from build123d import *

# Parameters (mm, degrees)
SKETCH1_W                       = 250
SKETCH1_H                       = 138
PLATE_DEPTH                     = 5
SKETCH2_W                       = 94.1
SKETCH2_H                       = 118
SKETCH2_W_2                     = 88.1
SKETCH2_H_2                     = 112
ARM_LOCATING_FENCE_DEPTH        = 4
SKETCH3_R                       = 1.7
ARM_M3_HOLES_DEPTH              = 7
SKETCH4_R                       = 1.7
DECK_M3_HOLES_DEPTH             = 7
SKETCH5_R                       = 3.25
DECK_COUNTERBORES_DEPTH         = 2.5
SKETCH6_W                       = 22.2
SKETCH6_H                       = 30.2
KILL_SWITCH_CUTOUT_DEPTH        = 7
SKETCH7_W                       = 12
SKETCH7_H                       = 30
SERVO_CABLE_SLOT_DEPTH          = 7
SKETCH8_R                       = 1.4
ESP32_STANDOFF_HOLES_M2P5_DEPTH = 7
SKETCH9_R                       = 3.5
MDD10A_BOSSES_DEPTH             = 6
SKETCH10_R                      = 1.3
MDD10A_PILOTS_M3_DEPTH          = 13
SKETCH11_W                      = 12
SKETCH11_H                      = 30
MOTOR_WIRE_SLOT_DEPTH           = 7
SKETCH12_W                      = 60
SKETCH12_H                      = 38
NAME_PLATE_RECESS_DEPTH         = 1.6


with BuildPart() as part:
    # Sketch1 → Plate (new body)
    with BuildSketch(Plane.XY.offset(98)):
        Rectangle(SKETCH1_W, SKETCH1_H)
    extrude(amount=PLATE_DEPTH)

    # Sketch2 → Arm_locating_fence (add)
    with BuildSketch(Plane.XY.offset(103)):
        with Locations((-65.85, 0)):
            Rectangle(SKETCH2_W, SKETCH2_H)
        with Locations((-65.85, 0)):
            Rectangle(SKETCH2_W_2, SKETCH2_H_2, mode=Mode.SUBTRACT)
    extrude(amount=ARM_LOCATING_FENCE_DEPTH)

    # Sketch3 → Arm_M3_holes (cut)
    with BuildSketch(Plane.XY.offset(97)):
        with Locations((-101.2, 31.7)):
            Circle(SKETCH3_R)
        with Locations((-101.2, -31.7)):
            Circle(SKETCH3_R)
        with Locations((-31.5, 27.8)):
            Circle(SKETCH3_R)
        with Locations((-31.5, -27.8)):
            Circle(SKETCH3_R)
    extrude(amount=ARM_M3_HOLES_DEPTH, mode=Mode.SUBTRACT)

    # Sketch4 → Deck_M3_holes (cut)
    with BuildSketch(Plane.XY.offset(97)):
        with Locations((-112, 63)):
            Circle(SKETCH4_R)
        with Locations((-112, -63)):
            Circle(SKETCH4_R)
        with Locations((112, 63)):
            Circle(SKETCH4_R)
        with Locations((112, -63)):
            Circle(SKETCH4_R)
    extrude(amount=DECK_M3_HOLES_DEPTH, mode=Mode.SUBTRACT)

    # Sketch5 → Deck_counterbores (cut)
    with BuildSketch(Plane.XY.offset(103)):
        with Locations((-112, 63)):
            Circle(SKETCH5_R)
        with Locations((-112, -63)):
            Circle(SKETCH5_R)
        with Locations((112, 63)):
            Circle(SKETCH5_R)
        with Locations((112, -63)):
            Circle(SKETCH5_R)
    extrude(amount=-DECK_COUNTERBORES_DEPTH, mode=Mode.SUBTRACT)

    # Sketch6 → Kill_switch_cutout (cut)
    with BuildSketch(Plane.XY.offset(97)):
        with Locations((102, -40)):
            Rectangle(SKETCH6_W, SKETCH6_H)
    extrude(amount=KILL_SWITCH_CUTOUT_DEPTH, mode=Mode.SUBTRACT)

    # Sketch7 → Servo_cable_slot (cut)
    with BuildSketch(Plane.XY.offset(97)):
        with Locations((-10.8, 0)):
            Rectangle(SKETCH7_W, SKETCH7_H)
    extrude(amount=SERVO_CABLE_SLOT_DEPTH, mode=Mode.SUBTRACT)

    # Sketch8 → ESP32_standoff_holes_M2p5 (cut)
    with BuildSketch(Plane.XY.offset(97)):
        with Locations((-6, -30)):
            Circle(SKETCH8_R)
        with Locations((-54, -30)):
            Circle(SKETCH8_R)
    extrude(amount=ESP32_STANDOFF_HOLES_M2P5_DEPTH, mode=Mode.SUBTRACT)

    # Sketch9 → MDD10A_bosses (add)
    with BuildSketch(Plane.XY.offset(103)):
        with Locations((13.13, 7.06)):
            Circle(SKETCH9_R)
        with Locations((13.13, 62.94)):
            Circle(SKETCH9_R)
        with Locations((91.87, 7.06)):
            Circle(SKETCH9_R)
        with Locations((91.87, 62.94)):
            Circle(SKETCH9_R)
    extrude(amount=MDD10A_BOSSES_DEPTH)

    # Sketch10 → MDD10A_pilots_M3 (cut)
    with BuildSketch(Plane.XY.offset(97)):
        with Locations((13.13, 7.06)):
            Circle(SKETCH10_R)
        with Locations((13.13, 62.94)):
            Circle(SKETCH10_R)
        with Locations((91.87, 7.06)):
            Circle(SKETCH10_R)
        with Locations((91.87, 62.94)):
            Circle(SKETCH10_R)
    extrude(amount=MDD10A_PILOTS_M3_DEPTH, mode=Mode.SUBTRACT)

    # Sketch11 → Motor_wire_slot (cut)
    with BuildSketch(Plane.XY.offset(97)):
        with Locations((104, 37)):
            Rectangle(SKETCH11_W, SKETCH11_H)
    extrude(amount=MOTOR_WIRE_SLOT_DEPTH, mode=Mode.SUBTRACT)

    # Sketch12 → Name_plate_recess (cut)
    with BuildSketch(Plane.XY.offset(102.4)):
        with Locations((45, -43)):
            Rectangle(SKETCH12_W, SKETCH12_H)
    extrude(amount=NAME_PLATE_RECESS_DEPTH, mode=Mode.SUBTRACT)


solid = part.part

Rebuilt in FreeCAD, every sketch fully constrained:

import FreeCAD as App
import Part
import Sketcher
from FreeCAD import Vector
Q = App.Units.Quantity


def add_polygon(sketch, points):
    """Adds a closed chain of lines whose ends are joined by coincident constraints."""
    first, n = sketch.GeometryCount, len(points)
    for a, b in zip(points, points[1:] + points[:1]):
        sketch.addGeometry(Part.LineSegment(App.Vector(*a, 0), App.Vector(*b, 0)), False)
    for i in range(n):
        sketch.addConstraint(Sketcher.Constraint("Coincident", first + i, 2, first + (i + 1) % n, 1))

doc = App.newDocument("Part")
body = doc.addObject("PartDesign::Body", "Body")

# Sketch on XY plane
sketch1 = doc.addObject("Sketcher::SketchObject", "Sketch")
body.addObject(sketch1)
sketch1.AttachmentSupport = (doc.XY_Plane, [""])
sketch1.MapMode = "FlatFace"
sketch1.AttachmentOffset = App.Placement(Vector(0, 0, 98), App.Rotation())
add_polygon(sketch1, [(-125, 69), (-125, -69), (125, -69), (125, 69)])  # lines 0-3
sketch1.addConstraint(Sketcher.Constraint("Vertical", 0))
sketch1.addConstraint(Sketcher.Constraint("Horizontal", 1))
sketch1.addConstraint(Sketcher.Constraint("Vertical", 2))
sketch1.addConstraint(Sketcher.Constraint("Horizontal", 3))
sketch1.addConstraint(Sketcher.Constraint("Symmetric", 0, 2, 2, 2, -1, 1))
sketch1.addConstraint(Sketcher.Constraint("DistanceX", 1, 1, 1, 2, Q("250 mm")))
sketch1.addConstraint(Sketcher.Constraint("DistanceY", 0, 2, 0, 1, Q("138 mm")))
pad1 = doc.addObject("PartDesign::Pad", "Pad")
body.addObject(pad1)
pad1.Profile = sketch1
pad1.Length = 5

# Sketch on XY plane
sketch2 = doc.addObject("Sketcher::SketchObject", "Sketch001")
body.addObject(sketch2)
sketch2.AttachmentSupport = (doc.XY_Plane, [""])
sketch2.MapMode = "FlatFace"
sketch2.AttachmentOffset = App.Placement(Vector(0, 0, 103), App.Rotation())
add_polygon(sketch2, [(-112.9, 59), (-112.9, -59), (-18.8, -59), (-18.8, 59)])  # lines 0-3
add_polygon(sketch2, [(-21.8, -56), (-109.9, -56), (-109.9, 56), (-21.8, 56)])  # lines 4-7
sketch2.addConstraint(Sketcher.Constraint("Vertical", 0))
sketch2.addConstraint(Sketcher.Constraint("Horizontal", 1))
sketch2.addConstraint(Sketcher.Constraint("Vertical", 2))
sketch2.addConstraint(Sketcher.Constraint("Horizontal", 3))
sketch2.addConstraint(Sketcher.Constraint("Horizontal", 4))
sketch2.addConstraint(Sketcher.Constraint("Vertical", 5))
sketch2.addConstraint(Sketcher.Constraint("Horizontal", 6))
sketch2.addConstraint(Sketcher.Constraint("Vertical", 7))
sketch2.addConstraint(Sketcher.Constraint("DistanceY", 0, 2, 0, 1, Q("118 mm")))
sketch2.addConstraint(Sketcher.Constraint("DistanceY", 5, 1, 5, 2, Q("112 mm")))
sketch2.addConstraint(Sketcher.Constraint("DistanceX", 1, 1, 1, 2, Q("94.1 mm")))
sketch2.addConstraint(Sketcher.Constraint("DistanceX", 4, 2, 4, 1, Q("88.1 mm")))
sketch2.addConstraint(Sketcher.Constraint("DistanceY", 0, 2, -1, 1, Q("59 mm")))
sketch2.addConstraint(Sketcher.Constraint("DistanceY", 4, 2, -1, 1, Q("56 mm")))
sketch2.addConstraint(Sketcher.Constraint("DistanceX", 0, 2, 4, 2, Q("3 mm")))
sketch2.addConstraint(Sketcher.Constraint("DistanceX", 0, 2, -1, 1, Q("112.9 mm")))
pad2 = doc.addObject("PartDesign::Pad", "Pad001")
body.addObject(pad2)
pad2.Profile = sketch2
pad2.Length = 4

# Sketch on XY plane
sketch3 = doc.addObject("Sketcher::SketchObject", "Sketch002")
body.addObject(sketch3)
sketch3.AttachmentSupport = (doc.XY_Plane, [""])
sketch3.MapMode = "FlatFace"
sketch3.AttachmentOffset = App.Placement(Vector(0, 0, 97), App.Rotation())
sketch3.addGeometry(Part.Circle(Vector(-101.2, 31.7, 0), Vector(0, 0, 1), 1.7), False)
sketch3.addGeometry(Part.Circle(Vector(-101.2, -31.7, 0), Vector(0, 0, 1), 1.7), False)
sketch3.addGeometry(Part.Circle(Vector(-31.5, 27.8, 0), Vector(0, 0, 1), 1.7), False)
sketch3.addGeometry(Part.Circle(Vector(-31.5, -27.8, 0), Vector(0, 0, 1), 1.7), False)
sketch3.addConstraint(Sketcher.Constraint("Equal", 0, 1))
sketch3.addConstraint(Sketcher.Constraint("Equal", 1, 2))
sketch3.addConstraint(Sketcher.Constraint("Equal", 2, 3))
sketch3.addConstraint(Sketcher.Constraint("Symmetric", 0, 3, 1, 3, -1))
sketch3.addConstraint(Sketcher.Constraint("Symmetric", 2, 3, 3, 3, -1))
sketch3.addConstraint(Sketcher.Constraint("Diameter", 0, Q("3.4 mm")))
sketch3.addConstraint(Sketcher.Constraint("DistanceX", 0, 3, -1, 1, Q("101.2 mm")))
sketch3.addConstraint(Sketcher.Constraint("DistanceY", -1, 1, 0, 3, Q("31.7 mm")))
sketch3.addConstraint(Sketcher.Constraint("DistanceX", 2, 3, -1, 1, Q("31.5 mm")))
sketch3.addConstraint(Sketcher.Constraint("DistanceY", -1, 1, 2, 3, Q("27.8 mm")))
pocket1 = doc.addObject("PartDesign::Pocket", "Pocket")
body.addObject(pocket1)
pocket1.Profile = sketch3
pocket1.Length = 7
pocket1.Reversed = True

# Sketch on XY plane
sketch4 = doc.addObject("Sketcher::SketchObject", "Sketch003")
body.addObject(sketch4)
sketch4.AttachmentSupport = (doc.XY_Plane, [""])
sketch4.MapMode = "FlatFace"
sketch4.AttachmentOffset = App.Placement(Vector(0, 0, 97), App.Rotation())
sketch4.addGeometry(Part.Circle(Vector(-112, 63, 0), Vector(0, 0, 1), 1.7), False)
sketch4.addGeometry(Part.Circle(Vector(-112, -63, 0), Vector(0, 0, 1), 1.7), False)
sketch4.addGeometry(Part.Circle(Vector(112, 63, 0), Vector(0, 0, 1), 1.7), False)
sketch4.addGeometry(Part.Circle(Vector(112, -63, 0), Vector(0, 0, 1), 1.7), False)
sketch4.addConstraint(Sketcher.Constraint("Equal", 0, 1))
sketch4.addConstraint(Sketcher.Constraint("Equal", 1, 2))
sketch4.addConstraint(Sketcher.Constraint("Equal", 2, 3))
sketch4.addConstraint(Sketcher.Constraint("Symmetric", 1, 3, 2, 3, -1, 1))
sketch4.addConstraint(Sketcher.Constraint("Symmetric", 0, 3, 3, 3, -1, 1))
sketch4.addConstraint(Sketcher.Constraint("Symmetric", 0, 3, 2, 3, -2))
sketch4.addConstraint(Sketcher.Constraint("Diameter", 0, Q("3.4 mm")))
sketch4.addConstraint(Sketcher.Constraint("DistanceX", 0, 3, -1, 1, Q("112 mm")))
sketch4.addConstraint(Sketcher.Constraint("DistanceY", -1, 1, 0, 3, Q("63 mm")))
pocket2 = doc.addObject("PartDesign::Pocket", "Pocket001")
body.addObject(pocket2)
pocket2.Profile = sketch4
pocket2.Length = 7
pocket2.Reversed = True

# Sketch on XY plane
sketch5 = doc.addObject("Sketcher::SketchObject", "Sketch004")
body.addObject(sketch5)
sketch5.AttachmentSupport = (doc.XY_Plane, [""])
sketch5.MapMode = "FlatFace"
sketch5.AttachmentOffset = App.Placement(Vector(0, 0, 103), App.Rotation())
sketch5.addGeometry(Part.Circle(Vector(-112, 63, 0), Vector(0, 0, 1), 3.25), False)
sketch5.addGeometry(Part.Circle(Vector(-112, -63, 0), Vector(0, 0, 1), 3.25), False)
sketch5.addGeometry(Part.Circle(Vector(112, 63, 0), Vector(0, 0, 1), 3.25), False)
sketch5.addGeometry(Part.Circle(Vector(112, -63, 0), Vector(0, 0, 1), 3.25), False)
sketch5.addConstraint(Sketcher.Constraint("Equal", 0, 1))
sketch5.addConstraint(Sketcher.Constraint("Equal", 1, 2))
sketch5.addConstraint(Sketcher.Constraint("Equal", 2, 3))
sketch5.addConstraint(Sketcher.Constraint("Symmetric", 1, 3, 2, 3, -1, 1))
sketch5.addConstraint(Sketcher.Constraint("Symmetric", 0, 3, 3, 3, -1, 1))
sketch5.addConstraint(Sketcher.Constraint("Symmetric", 0, 3, 2, 3, -2))
sketch5.addConstraint(Sketcher.Constraint("Diameter", 0, Q("6.5 mm")))
sketch5.addConstraint(Sketcher.Constraint("DistanceX", 0, 3, -1, 1, Q("112 mm")))
sketch5.addConstraint(Sketcher.Constraint("DistanceY", -1, 1, 0, 3, Q("63 mm")))
pocket3 = doc.addObject("PartDesign::Pocket", "Pocket002")
body.addObject(pocket3)
pocket3.Profile = sketch5
pocket3.Length = 2.5

# Sketch on XY plane
sketch6 = doc.addObject("Sketcher::SketchObject", "Sketch005")
body.addObject(sketch6)
sketch6.AttachmentSupport = (doc.XY_Plane, [""])
sketch6.MapMode = "FlatFace"
sketch6.AttachmentOffset = App.Placement(Vector(0, 0, 97), App.Rotation())
add_polygon(sketch6, [(90.9, -24.9), (90.9, -55.1), (113.1, -55.1), (113.1, -24.9)])  # lines 0-3
sketch6.addConstraint(Sketcher.Constraint("Vertical", 0))
sketch6.addConstraint(Sketcher.Constraint("Horizontal", 1))
sketch6.addConstraint(Sketcher.Constraint("Vertical", 2))
sketch6.addConstraint(Sketcher.Constraint("Horizontal", 3))
sketch6.addConstraint(Sketcher.Constraint("DistanceX", 1, 1, 1, 2, Q("22.2 mm")))
sketch6.addConstraint(Sketcher.Constraint("DistanceY", 0, 2, 0, 1, Q("30.2 mm")))
sketch6.addConstraint(Sketcher.Constraint("DistanceX", -1, 1, 0, 2, Q("90.9 mm")))
sketch6.addConstraint(Sketcher.Constraint("DistanceY", 0, 2, -1, 1, Q("55.1 mm")))
pocket4 = doc.addObject("PartDesign::Pocket", "Pocket003")
body.addObject(pocket4)
pocket4.Profile = sketch6
pocket4.Length = 7
pocket4.Reversed = True

# Sketch on XY plane
sketch7 = doc.addObject("Sketcher::SketchObject", "Sketch006")
body.addObject(sketch7)
sketch7.AttachmentSupport = (doc.XY_Plane, [""])
sketch7.MapMode = "FlatFace"
sketch7.AttachmentOffset = App.Placement(Vector(0, 0, 97), App.Rotation())
add_polygon(sketch7, [(-16.8, 15), (-16.8, -15), (-4.8, -15), (-4.8, 15)])  # lines 0-3
sketch7.addConstraint(Sketcher.Constraint("Vertical", 0))
sketch7.addConstraint(Sketcher.Constraint("Horizontal", 1))
sketch7.addConstraint(Sketcher.Constraint("Vertical", 2))
sketch7.addConstraint(Sketcher.Constraint("Horizontal", 3))
sketch7.addConstraint(Sketcher.Constraint("DistanceX", 1, 1, 1, 2, Q("12 mm")))
sketch7.addConstraint(Sketcher.Constraint("DistanceY", 0, 2, 0, 1, Q("30 mm")))
sketch7.addConstraint(Sketcher.Constraint("DistanceY", 0, 2, -1, 1, Q("15 mm")))
sketch7.addConstraint(Sketcher.Constraint("DistanceX", 0, 2, -1, 1, Q("16.8 mm")))
pocket5 = doc.addObject("PartDesign::Pocket", "Pocket004")
body.addObject(pocket5)
pocket5.Profile = sketch7
pocket5.Length = 7
pocket5.Reversed = True

# Sketch on XY plane
sketch8 = doc.addObject("Sketcher::SketchObject", "Sketch007")
body.addObject(sketch8)
sketch8.AttachmentSupport = (doc.XY_Plane, [""])
sketch8.MapMode = "FlatFace"
sketch8.AttachmentOffset = App.Placement(Vector(0, 0, 97), App.Rotation())
sketch8.addGeometry(Part.Circle(Vector(-6, -30, 0), Vector(0, 0, 1), 1.4), False)
sketch8.addGeometry(Part.Circle(Vector(-54, -30, 0), Vector(0, 0, 1), 1.4), False)
sketch8.addConstraint(Sketcher.Constraint("Equal", 0, 1))
sketch8.addConstraint(Sketcher.Constraint("Horizontal", 0, 3, 1, 3))
sketch8.addConstraint(Sketcher.Constraint("Diameter", 0, Q("2.8 mm")))
sketch8.addConstraint(Sketcher.Constraint("DistanceX", 0, 3, -1, 1, Q("6 mm")))
sketch8.addConstraint(Sketcher.Constraint("DistanceY", 0, 3, -1, 1, Q("30 mm")))
sketch8.addConstraint(Sketcher.Constraint("DistanceX", 1, 3, -1, 1, Q("54 mm")))
pocket6 = doc.addObject("PartDesign::Pocket", "Pocket005")
body.addObject(pocket6)
pocket6.Profile = sketch8
pocket6.Length = 7
pocket6.Reversed = True

# Sketch on XY plane
sketch9 = doc.addObject("Sketcher::SketchObject", "Sketch008")
body.addObject(sketch9)
sketch9.AttachmentSupport = (doc.XY_Plane, [""])
sketch9.MapMode = "FlatFace"
sketch9.AttachmentOffset = App.Placement(Vector(0, 0, 103), App.Rotation())
sketch9.addGeometry(Part.Circle(Vector(13.13, 7.06, 0), Vector(0, 0, 1), 3.5), False)
sketch9.addGeometry(Part.Circle(Vector(13.13, 62.94, 0), Vector(0, 0, 1), 3.5), False)
sketch9.addGeometry(Part.Circle(Vector(91.87, 7.06, 0), Vector(0, 0, 1), 3.5), False)
sketch9.addGeometry(Part.Circle(Vector(91.87, 62.94, 0), Vector(0, 0, 1), 3.5), False)
sketch9.addConstraint(Sketcher.Constraint("Equal", 0, 1))
sketch9.addConstraint(Sketcher.Constraint("Equal", 1, 2))
sketch9.addConstraint(Sketcher.Constraint("Equal", 2, 3))
sketch9.addConstraint(Sketcher.Constraint("Horizontal", 0, 3, 2, 3))
sketch9.addConstraint(Sketcher.Constraint("Horizontal", 1, 3, 3, 3))
sketch9.addConstraint(Sketcher.Constraint("Vertical", 0, 3, 1, 3))
sketch9.addConstraint(Sketcher.Constraint("Vertical", 2, 3, 3, 3))
sketch9.addConstraint(Sketcher.Constraint("Diameter", 0, Q("7 mm")))
sketch9.addConstraint(Sketcher.Constraint("DistanceX", -1, 1, 0, 3, Q("13.13 mm")))
sketch9.addConstraint(Sketcher.Constraint("DistanceY", -1, 1, 0, 3, Q("7.06 mm")))
sketch9.addConstraint(Sketcher.Constraint("DistanceY", -1, 1, 1, 3, Q("62.94 mm")))
sketch9.addConstraint(Sketcher.Constraint("DistanceX", -1, 1, 2, 3, Q("91.87 mm")))
pad3 = doc.addObject("PartDesign::Pad", "Pad002")
body.addObject(pad3)
pad3.Profile = sketch9
pad3.Length = 6

# Sketch on XY plane
sketch10 = doc.addObject("Sketcher::SketchObject", "Sketch009")
body.addObject(sketch10)
sketch10.AttachmentSupport = (doc.XY_Plane, [""])
sketch10.MapMode = "FlatFace"
sketch10.AttachmentOffset = App.Placement(Vector(0, 0, 97), App.Rotation())
sketch10.addGeometry(Part.Circle(Vector(13.13, 7.06, 0), Vector(0, 0, 1), 1.3), False)
sketch10.addGeometry(Part.Circle(Vector(13.13, 62.94, 0), Vector(0, 0, 1), 1.3), False)
sketch10.addGeometry(Part.Circle(Vector(91.87, 7.06, 0), Vector(0, 0, 1), 1.3), False)
sketch10.addGeometry(Part.Circle(Vector(91.87, 62.94, 0), Vector(0, 0, 1), 1.3), False)
sketch10.addConstraint(Sketcher.Constraint("Equal", 0, 1))
sketch10.addConstraint(Sketcher.Constraint("Equal", 1, 2))
sketch10.addConstraint(Sketcher.Constraint("Equal", 2, 3))
sketch10.addConstraint(Sketcher.Constraint("Horizontal", 0, 3, 2, 3))
sketch10.addConstraint(Sketcher.Constraint("Horizontal", 1, 3, 3, 3))
sketch10.addConstraint(Sketcher.Constraint("Vertical", 0, 3, 1, 3))
sketch10.addConstraint(Sketcher.Constraint("Vertical", 2, 3, 3, 3))
sketch10.addConstraint(Sketcher.Constraint("Diameter", 0, Q("2.6 mm")))
sketch10.addConstraint(Sketcher.Constraint("DistanceX", -1, 1, 0, 3, Q("13.13 mm")))
sketch10.addConstraint(Sketcher.Constraint("DistanceY", -1, 1, 0, 3, Q("7.06 mm")))
sketch10.addConstraint(Sketcher.Constraint("DistanceY", -1, 1, 1, 3, Q("62.94 mm")))
sketch10.addConstraint(Sketcher.Constraint("DistanceX", -1, 1, 2, 3, Q("91.87 mm")))
pocket7 = doc.addObject("PartDesign::Pocket", "Pocket006")
body.addObject(pocket7)
pocket7.Profile = sketch10
pocket7.Length = 13
pocket7.Reversed = True

# Sketch on XY plane
sketch11 = doc.addObject("Sketcher::SketchObject", "Sketch010")
body.addObject(sketch11)
sketch11.AttachmentSupport = (doc.XY_Plane, [""])
sketch11.MapMode = "FlatFace"
sketch11.AttachmentOffset = App.Placement(Vector(0, 0, 97), App.Rotation())
add_polygon(sketch11, [(98, 52), (98, 22), (110, 22), (110, 52)])  # lines 0-3
sketch11.addConstraint(Sketcher.Constraint("Vertical", 0))
sketch11.addConstraint(Sketcher.Constraint("Horizontal", 1))
sketch11.addConstraint(Sketcher.Constraint("Vertical", 2))
sketch11.addConstraint(Sketcher.Constraint("Horizontal", 3))
sketch11.addConstraint(Sketcher.Constraint("DistanceX", 1, 1, 1, 2, Q("12 mm")))
sketch11.addConstraint(Sketcher.Constraint("DistanceY", 0, 2, 0, 1, Q("30 mm")))
sketch11.addConstraint(Sketcher.Constraint("DistanceX", -1, 1, 0, 2, Q("98 mm")))
sketch11.addConstraint(Sketcher.Constraint("DistanceY", -1, 1, 0, 2, Q("22 mm")))
pocket8 = doc.addObject("PartDesign::Pocket", "Pocket007")
body.addObject(pocket8)
pocket8.Profile = sketch11
pocket8.Length = 7
pocket8.Reversed = True

# Sketch on XY plane
sketch12 = doc.addObject("Sketcher::SketchObject", "Sketch011")
body.addObject(sketch12)
sketch12.AttachmentSupport = (doc.XY_Plane, [""])
sketch12.MapMode = "FlatFace"
sketch12.AttachmentOffset = App.Placement(Vector(0, 0, 102.4), App.Rotation())
add_polygon(sketch12, [(15, -24), (15, -62), (75, -62), (75, -24)])  # lines 0-3
sketch12.addConstraint(Sketcher.Constraint("Vertical", 0))
sketch12.addConstraint(Sketcher.Constraint("Horizontal", 1))
sketch12.addConstraint(Sketcher.Constraint("Vertical", 2))
sketch12.addConstraint(Sketcher.Constraint("Horizontal", 3))
sketch12.addConstraint(Sketcher.Constraint("DistanceX", 1, 1, 1, 2, Q("60 mm")))
sketch12.addConstraint(Sketcher.Constraint("DistanceY", 0, 2, 0, 1, Q("38 mm")))
sketch12.addConstraint(Sketcher.Constraint("DistanceX", -1, 1, 0, 2, Q("15 mm")))
sketch12.addConstraint(Sketcher.Constraint("DistanceY", 0, 2, -1, 1, Q("62 mm")))
pocket9 = doc.addObject("PartDesign::Pocket", "Pocket008")
body.addObject(pocket9)
pocket9.Profile = sketch12
pocket9.Length = 1.6
pocket9.Reversed = True

doc.recompute()
